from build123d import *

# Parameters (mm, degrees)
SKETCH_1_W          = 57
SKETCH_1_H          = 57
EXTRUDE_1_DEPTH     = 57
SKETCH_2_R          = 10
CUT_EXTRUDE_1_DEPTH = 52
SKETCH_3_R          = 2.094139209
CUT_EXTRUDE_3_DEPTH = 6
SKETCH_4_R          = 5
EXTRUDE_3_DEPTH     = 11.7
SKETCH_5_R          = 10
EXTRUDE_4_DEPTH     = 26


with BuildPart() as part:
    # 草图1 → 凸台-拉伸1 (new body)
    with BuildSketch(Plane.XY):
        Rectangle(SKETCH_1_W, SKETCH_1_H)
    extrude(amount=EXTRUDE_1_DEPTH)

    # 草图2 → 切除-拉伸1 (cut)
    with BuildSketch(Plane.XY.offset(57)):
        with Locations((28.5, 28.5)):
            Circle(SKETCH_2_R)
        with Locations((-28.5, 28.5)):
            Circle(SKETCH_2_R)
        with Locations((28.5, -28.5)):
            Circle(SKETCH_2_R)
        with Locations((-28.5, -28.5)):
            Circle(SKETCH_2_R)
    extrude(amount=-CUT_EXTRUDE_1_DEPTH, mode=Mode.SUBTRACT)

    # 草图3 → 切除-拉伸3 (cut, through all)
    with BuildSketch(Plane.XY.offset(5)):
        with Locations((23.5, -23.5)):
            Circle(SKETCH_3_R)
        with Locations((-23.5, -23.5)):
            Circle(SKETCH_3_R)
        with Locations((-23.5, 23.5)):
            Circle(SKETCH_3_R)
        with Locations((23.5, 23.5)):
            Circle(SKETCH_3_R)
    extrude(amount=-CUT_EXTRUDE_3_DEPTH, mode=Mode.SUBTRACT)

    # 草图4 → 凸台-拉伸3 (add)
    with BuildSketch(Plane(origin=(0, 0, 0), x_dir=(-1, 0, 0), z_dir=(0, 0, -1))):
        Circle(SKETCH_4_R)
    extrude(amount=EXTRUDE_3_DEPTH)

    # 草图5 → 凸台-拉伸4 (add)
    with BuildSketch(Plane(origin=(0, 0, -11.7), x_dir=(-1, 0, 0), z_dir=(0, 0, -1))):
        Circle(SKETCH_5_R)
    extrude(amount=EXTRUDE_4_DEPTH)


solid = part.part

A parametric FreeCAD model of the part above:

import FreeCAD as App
import Part
import Sketcher

V = App.Vector

doc = App.newDocument("Part")
body = doc.addObject("PartDesign::Body", "Body")

sketch1 = body.newObject("Sketcher::SketchObject", "Sketch")
sketch1.AttachmentSupport = (doc.getObject("XY_Plane"), [""])
sketch1.MapMode = "FlatFace"
sketch1.addGeometry(Part.LineSegment(V(-28, 28, 0), V(-28, -28, 0)), False)
sketch1.addGeometry(Part.LineSegment(V(-28, -28, 0), V(28, -28, 0)), False)
sketch1.addGeometry(Part.LineSegment(V(28, -28, 0), V(28, 28, 0)), False)
sketch1.addGeometry(Part.LineSegment(V(28, 28, 0), V(-28, 28, 0)), False)
sketch1.addConstraint(Sketcher.Constraint("Coincident", 0, 2, 1, 1))
sketch1.addConstraint(Sketcher.Constraint("Coincident", 1, 2, 2, 1))
sketch1.addConstraint(Sketcher.Constraint("Coincident", 2, 2, 3, 1))
sketch1.addConstraint(Sketcher.Constraint("Coincident", 3, 2, 0, 1))
sketch1.addConstraint(Sketcher.Constraint("Vertical", 0))
sketch1.addConstraint(Sketcher.Constraint("Horizontal", 1))
sketch1.addConstraint(Sketcher.Constraint("Vertical", 2))
sketch1.addConstraint(Sketcher.Constraint("Horizontal", 3))
sketch1.addConstraint(Sketcher.Constraint("Symmetric", 0, 2, 2, 2, -1, 1))
sketch1.addConstraint(Sketcher.Constraint("Equal", 3, 0))
sketch1.addConstraint(Sketcher.Constraint("DistanceX", 1, 1, 1, 2, 57.0))
pad1 = body.newObject("PartDesign::Pad", "Pad")
pad1.Profile = sketch1
pad1.Length = 57

sketch2 = body.newObject("Sketcher::SketchObject", "Sketch001")
sketch2.AttachmentSupport = (doc.getObject("XY_Plane"), [""])
sketch2.MapMode = "FlatFace"
sketch2.AttachmentOffset = App.Placement(V(0, 0, 57), App.Rotation())
sketch2.addGeometry(Part.Circle(V(28, 28, 0), V(0, 0, 1), 10), False)
sketch2.addGeometry(Part.Circle(V(-28, 28, 0), V(0, 0, 1), 10), False)
sketch2.addGeometry(Part.Circle(V(28, -28, 0), V(0, 0, 1), 10), False)
sketch2.addGeometry(Part.Circle(V(-28, -28, 0), V(0, 0, 1), 10), False)
sketch2.addConstraint(Sketcher.Constraint("Equal", 0, 1))
sketch2.addConstraint(Sketcher.Constraint("Equal", 1, 2))
sketch2.addConstraint(Sketcher.Constraint("Equal", 2, 3))
sketch2.addConstraint(Sketcher.Constraint("Symmetric", 1, 3, 2, 3, -1, 1))
sketch2.addConstraint(Sketcher.Constraint("Symmetric", 0, 3, 3, 3, -1, 1))
sketch2.addConstraint(Sketcher.Constraint("Symmetric", 0, 3, 1, 3, -2))
sketch2.addConstraint(Sketcher.Constraint("Diameter", 0, 20.0))
sketch2.addConstraint(Sketcher.Constraint("DistanceX", 1, 3, 0, 3, 57.0))
sketch2.addConstraint(Sketcher.Constraint("DistanceY", 2, 3, 0, 3, 57.0))
pocket1 = body.newObject("PartDesign::Pocket", "Pocket")
pocket1.Profile = sketch2
pocket1.Length = 52

sketch3 = body.newObject("Sketcher::SketchObject", "Sketch002")
sketch3.AttachmentSupport = (doc.getObject("XY_Plane"), [""])
sketch3.MapMode = "FlatFace"
sketch3.AttachmentOffset = App.Placement(V(0, 0, 5), App.Rotation())
sketch3.addGeometry(Part.Circle(V(23.5, -23.5, 0), V(0, 0, 1), 2.1), False)
sketch3.addGeometry(Part.Circle(V(-23.5, -23.5, 0), V(0, 0, 1), 2.1), False)
sketch3.addGeometry(Part.Circle(V(-23.5, 23.5, 0), V(0, 0, 1), 2.1), False)
sketch3.addGeometry(Part.Circle(V(23.5, 23.5, 0), V(0, 0, 1), 2.1), False)
sketch3.addConstraint(Sketcher.Constraint("Equal", 0, 1))
sketch3.addConstraint(Sketcher.Constraint("Equal", 1, 2))
sketch3.addConstraint(Sketcher.Constraint("Equal", 2, 3))
sketch3.addConstraint(Sketcher.Constraint("Symmetric", 0, 3, 2, 3, -1, 1))
sketch3.addConstraint(Sketcher.Constraint("Symmetric", 1, 3, 3, 3, -1, 1))
sketch3.addConstraint(Sketcher.Constraint("Symmetric", 0, 3, 1, 3, -2))
sketch3.addConstraint(Sketcher.Constraint("DistanceX", 1, 3, 0, 3, 47.0))
sketch3.addConstraint(Sketcher.Constraint("DistanceY", 1, 3, 2, 3, 47.0))
sketch3.addConstraint(Sketcher.Constraint("Diameter", 0, 4.188278))
pocket2 = body.newObject("PartDesign::Pocket", "Pocket001")
pocket2.Profile = sketch3
pocket2.Type = "ThroughAll"

sketch4 = body.newObject("Sketcher::SketchObject", "Sketch003")
sketch4.AttachmentSupport = (doc.getObject("XY_Plane"), [""])
sketch4.MapMode = "FlatFace"
sketch4.addGeometry(Part.Circle(V(0, 0, 0), V(0, 0, 1), 5), False)
sketch4.addConstraint(Sketcher.Constraint("Coincident", 0, 3, -1, 1))
sketch4.addConstraint(Sketcher.Constraint("Diameter", 0, 10.0))
pad2 = body.newObject("PartDesign::Pad", "Pad001")
pad2.Profile = sketch4
pad2.Length = 11.7
pad2.Reversed = True

sketch5 = body.newObject("Sketcher::SketchObject", "Sketch004")
sketch5.AttachmentSupport = (doc.getObject("XY_Plane"), [""])
sketch5.MapMode = "FlatFace"
sketch5.AttachmentOffset = App.Placement(V(0, 0, -11.7), App.Rotation())
sketch5.addGeometry(Part.Circle(V(0, 0, 0), V(0, 0, 1), 10), False)
sketch5.addConstraint(Sketcher.Constraint("Coincident", 0, 3, -1, 1))
sketch5.addConstraint(Sketcher.Constraint("Diameter", 0, 20.0))
pad3 = body.newObject("PartDesign::Pad", "Pad002")
pad3.Profile = sketch5
pad3.Length = 26
pad3.Reversed = True

doc.recompute()
